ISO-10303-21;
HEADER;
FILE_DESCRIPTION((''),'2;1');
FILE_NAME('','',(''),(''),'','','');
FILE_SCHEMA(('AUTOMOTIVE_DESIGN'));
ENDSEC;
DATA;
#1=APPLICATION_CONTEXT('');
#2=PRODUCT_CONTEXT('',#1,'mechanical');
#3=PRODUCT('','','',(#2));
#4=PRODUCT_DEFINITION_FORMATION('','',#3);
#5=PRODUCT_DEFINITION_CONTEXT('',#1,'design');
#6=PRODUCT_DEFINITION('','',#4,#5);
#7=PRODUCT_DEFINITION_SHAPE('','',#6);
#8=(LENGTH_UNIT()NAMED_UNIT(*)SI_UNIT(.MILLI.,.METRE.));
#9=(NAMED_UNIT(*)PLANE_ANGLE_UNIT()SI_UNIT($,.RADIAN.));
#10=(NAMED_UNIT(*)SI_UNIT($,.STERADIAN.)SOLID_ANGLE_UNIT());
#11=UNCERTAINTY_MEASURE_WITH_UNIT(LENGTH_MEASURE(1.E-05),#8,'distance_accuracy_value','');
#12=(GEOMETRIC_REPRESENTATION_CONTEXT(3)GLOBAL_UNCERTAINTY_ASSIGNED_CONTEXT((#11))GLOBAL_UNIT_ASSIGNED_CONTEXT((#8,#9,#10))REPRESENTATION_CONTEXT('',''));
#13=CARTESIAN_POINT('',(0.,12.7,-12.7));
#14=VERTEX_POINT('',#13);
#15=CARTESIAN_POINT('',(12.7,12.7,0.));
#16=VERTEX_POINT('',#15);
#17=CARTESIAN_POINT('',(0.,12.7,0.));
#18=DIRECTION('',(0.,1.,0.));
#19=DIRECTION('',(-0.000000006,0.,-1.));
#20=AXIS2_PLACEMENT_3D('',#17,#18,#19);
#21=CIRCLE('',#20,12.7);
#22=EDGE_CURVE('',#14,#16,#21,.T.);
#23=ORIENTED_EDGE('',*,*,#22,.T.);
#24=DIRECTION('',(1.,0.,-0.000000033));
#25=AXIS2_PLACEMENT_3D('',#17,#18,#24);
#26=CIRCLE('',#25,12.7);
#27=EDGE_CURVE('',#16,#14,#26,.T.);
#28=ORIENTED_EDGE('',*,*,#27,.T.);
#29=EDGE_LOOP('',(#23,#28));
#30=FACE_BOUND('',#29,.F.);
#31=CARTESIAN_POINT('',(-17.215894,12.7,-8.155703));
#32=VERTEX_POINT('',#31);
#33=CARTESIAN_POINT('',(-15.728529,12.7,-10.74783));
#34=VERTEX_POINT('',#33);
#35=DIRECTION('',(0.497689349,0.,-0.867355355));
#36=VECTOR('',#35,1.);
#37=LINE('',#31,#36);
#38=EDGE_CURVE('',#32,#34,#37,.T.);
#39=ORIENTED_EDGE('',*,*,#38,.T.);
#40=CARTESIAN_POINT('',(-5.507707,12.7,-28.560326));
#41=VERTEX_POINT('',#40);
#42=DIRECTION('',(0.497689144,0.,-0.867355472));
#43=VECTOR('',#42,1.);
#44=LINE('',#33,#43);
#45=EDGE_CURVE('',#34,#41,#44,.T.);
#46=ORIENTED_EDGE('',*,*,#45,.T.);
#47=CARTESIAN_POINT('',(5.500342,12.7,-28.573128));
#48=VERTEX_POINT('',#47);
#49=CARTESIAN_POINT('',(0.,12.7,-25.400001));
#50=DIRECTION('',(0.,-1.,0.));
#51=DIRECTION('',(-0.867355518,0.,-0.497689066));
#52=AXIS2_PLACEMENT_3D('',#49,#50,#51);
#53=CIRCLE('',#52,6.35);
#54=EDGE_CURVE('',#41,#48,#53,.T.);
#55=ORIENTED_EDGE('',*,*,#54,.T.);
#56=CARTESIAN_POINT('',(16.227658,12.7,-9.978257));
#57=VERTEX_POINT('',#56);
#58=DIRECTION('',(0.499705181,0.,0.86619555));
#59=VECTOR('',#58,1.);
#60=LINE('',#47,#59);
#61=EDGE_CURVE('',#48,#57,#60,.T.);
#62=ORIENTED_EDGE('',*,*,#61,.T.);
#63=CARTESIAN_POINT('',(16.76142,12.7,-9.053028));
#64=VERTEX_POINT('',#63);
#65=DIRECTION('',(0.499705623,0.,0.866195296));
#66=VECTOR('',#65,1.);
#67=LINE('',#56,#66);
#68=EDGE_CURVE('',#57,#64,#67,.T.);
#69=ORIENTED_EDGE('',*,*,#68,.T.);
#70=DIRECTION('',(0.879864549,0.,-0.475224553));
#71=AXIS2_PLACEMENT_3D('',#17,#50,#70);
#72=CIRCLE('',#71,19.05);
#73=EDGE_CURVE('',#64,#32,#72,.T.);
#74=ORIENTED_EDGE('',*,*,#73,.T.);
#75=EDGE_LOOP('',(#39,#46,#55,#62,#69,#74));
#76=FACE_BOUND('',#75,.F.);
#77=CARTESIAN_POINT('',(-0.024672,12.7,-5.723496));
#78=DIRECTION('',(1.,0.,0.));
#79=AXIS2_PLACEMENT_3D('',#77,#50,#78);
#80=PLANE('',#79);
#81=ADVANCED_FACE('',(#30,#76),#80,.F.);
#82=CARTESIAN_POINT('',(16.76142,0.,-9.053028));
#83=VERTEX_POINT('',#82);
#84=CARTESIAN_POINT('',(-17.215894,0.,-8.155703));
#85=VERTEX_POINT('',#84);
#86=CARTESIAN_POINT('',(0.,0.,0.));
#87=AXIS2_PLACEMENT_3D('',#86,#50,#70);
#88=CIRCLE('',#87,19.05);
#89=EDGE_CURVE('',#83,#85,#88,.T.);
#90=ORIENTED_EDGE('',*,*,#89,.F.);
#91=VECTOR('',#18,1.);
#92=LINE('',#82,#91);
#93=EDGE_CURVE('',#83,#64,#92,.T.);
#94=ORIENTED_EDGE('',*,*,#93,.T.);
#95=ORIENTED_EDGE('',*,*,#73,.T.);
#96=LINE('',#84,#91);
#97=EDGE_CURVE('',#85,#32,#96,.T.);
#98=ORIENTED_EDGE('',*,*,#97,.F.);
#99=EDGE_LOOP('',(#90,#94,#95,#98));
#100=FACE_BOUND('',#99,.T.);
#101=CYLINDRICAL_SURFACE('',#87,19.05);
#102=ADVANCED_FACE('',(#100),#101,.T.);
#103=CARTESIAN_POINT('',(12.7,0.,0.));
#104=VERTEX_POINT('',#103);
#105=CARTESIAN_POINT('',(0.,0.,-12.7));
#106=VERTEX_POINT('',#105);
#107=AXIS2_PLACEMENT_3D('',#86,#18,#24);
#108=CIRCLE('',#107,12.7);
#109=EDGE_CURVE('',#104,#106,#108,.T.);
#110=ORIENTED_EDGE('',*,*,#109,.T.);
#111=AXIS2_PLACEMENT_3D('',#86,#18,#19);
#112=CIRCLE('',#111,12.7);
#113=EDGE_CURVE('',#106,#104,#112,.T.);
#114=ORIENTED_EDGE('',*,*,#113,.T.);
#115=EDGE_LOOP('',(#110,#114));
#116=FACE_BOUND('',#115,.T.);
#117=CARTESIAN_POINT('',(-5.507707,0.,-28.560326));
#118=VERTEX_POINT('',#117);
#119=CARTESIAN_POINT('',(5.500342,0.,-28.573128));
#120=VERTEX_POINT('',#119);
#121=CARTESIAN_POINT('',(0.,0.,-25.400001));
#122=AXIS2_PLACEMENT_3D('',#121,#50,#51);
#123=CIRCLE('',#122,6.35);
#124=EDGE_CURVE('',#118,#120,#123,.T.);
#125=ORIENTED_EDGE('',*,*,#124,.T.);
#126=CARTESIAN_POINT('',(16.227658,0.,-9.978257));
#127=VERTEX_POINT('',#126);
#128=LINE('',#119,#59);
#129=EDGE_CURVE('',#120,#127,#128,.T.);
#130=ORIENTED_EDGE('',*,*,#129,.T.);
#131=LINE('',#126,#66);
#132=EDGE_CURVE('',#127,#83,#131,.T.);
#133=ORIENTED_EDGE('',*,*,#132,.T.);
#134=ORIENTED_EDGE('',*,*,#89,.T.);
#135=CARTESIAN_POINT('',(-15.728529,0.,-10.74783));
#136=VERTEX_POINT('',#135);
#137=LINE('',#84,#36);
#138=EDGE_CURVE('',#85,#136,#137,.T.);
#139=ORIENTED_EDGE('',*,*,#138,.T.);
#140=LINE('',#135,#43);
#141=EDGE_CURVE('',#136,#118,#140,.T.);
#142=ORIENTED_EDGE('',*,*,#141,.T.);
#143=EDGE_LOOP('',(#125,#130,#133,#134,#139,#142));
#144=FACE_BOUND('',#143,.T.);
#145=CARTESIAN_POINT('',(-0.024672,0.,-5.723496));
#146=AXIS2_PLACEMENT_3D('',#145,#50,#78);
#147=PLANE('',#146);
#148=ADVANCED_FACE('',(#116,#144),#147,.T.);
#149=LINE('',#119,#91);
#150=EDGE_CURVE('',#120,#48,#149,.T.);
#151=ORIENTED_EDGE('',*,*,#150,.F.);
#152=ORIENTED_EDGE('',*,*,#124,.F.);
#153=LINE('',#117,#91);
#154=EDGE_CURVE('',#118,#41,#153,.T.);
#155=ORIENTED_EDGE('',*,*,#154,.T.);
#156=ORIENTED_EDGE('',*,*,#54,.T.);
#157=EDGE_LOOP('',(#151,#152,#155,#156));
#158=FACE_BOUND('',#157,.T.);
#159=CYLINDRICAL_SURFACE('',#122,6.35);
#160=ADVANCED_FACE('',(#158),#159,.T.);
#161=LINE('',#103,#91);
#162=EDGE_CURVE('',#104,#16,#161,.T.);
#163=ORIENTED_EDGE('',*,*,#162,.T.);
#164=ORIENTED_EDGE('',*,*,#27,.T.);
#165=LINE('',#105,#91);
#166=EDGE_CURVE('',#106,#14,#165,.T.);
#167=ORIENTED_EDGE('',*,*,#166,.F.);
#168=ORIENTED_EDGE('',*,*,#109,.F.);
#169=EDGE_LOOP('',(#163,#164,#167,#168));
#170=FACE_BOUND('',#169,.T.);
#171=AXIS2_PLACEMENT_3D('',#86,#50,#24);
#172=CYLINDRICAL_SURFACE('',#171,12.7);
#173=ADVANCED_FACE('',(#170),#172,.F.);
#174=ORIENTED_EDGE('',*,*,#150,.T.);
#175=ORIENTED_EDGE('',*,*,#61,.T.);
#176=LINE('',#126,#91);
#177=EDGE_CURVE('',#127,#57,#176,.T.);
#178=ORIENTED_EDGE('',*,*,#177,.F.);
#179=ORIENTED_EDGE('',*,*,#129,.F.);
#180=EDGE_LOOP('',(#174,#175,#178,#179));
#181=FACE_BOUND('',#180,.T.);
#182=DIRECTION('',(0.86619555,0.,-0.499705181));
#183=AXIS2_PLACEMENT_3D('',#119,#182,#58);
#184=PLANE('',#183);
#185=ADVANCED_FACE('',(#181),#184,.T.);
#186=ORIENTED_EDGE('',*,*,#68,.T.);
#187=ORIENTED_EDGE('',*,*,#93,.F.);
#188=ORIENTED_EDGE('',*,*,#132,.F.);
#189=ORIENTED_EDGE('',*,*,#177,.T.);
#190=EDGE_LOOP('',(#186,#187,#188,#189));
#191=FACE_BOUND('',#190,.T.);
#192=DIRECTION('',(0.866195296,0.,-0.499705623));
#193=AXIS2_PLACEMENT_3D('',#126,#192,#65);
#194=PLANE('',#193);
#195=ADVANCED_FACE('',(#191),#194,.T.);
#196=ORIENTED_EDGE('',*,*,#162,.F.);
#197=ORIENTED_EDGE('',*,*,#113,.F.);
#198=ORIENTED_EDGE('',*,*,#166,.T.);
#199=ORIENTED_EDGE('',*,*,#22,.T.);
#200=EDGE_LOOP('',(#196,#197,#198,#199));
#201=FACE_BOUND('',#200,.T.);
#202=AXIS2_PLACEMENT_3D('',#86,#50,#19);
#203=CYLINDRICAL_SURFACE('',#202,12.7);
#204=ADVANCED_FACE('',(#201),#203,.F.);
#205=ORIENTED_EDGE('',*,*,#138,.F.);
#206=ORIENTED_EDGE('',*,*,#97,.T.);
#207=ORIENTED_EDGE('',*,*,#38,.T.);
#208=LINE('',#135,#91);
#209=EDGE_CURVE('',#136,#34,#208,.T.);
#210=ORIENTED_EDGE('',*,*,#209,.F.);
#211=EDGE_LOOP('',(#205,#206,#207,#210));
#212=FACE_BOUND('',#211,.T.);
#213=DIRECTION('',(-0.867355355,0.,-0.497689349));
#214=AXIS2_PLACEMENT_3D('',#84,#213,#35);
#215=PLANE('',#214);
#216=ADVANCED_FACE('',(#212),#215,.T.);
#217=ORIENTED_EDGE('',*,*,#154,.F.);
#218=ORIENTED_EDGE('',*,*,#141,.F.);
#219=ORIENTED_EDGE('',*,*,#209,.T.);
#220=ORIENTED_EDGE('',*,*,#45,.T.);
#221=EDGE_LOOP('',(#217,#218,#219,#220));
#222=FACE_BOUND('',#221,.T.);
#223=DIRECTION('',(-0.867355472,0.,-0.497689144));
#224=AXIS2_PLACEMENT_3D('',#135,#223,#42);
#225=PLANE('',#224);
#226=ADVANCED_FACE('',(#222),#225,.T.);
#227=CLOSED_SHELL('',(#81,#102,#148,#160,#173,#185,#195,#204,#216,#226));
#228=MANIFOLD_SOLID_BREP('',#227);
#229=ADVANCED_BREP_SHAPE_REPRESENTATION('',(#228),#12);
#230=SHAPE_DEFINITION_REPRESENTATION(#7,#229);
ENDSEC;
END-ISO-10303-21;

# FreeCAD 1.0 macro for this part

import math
import FreeCAD as App
import Part
import Sketcher

V = App.Vector
Q = App.Units.Quantity

doc = App.newDocument("Part")
body = doc.addObject("PartDesign::Body", "Body")

# Sketch on XZ plane
sketch1 = body.newObject("Sketcher::SketchObject", "Sketch")
sketch1.AttachmentSupport = (doc.getObject("XZ_Plane"), [""])
sketch1.MapMode = "FlatFace"
sketch1.addGeometry([
    Part.LineSegment(V(5.5, -28.6, 0), V(16.2, -10, 0)),  # 0
    Part.LineSegment(V(16.2, -10, 0), V(16.8, -9.1, 0)),  # 1
    Part.ArcOfCircle(Part.Circle(V(0, 0, 0), V(0, 0, 1), 19.1), math.radians(-28), math.radians(205)),  # 2
    Part.LineSegment(V(-17.2, -8.2, 0), V(-15.7, -10.7, 0)),  # 3
    Part.LineSegment(V(-15.7, -10.7, 0), V(-5.5, -28.6, 0)),  # 4
    Part.ArcOfCircle(Part.Circle(V(0, -25.4, 0), V(0, 0, 1), 6.3), math.radians(-150), math.radians(-30)),  # 5
    Part.ArcOfCircle(Part.Circle(V(0, 0, 0), V(0, 0, 1), 12.7), math.radians(-90), math.radians(0)),  # 6
    Part.ArcOfCircle(Part.Circle(V(0, 0, 0), V(0, 0, 1), 12.7), math.radians(0), math.radians(270)),  # 7
], False)
sketch1.addConstraint([
    Sketcher.Constraint("Coincident", 0, 2, 1, 1),
    Sketcher.Constraint("Coincident", 1, 2, 2, 1),
    Sketcher.Constraint("Coincident", 2, 2, 3, 1),
    Sketcher.Constraint("Coincident", 3, 2, 4, 1),
    Sketcher.Constraint("Tangent", 4, 2, 5, 1),
    Sketcher.Constraint("Tangent", 5, 2, 0, 1),
    Sketcher.Constraint("Tangent", 6, 1, 7, 2),
    Sketcher.Constraint("Coincident", 7, 1, 6, 2),
    Sketcher.Constraint("Coincident", 2, 3, -1, 1),
    Sketcher.Constraint("Coincident", 6, 3, -1, 1),
    Sketcher.Constraint("PointOnObject", 5, 3, -2),
    Sketcher.Constraint("PointOnObject", 6, 1, -2),
    Sketcher.Constraint("PointOnObject", 7, 1, -1),
    Sketcher.Constraint("Parallel", 0, 1),
    Sketcher.Constraint("Parallel", 3, 4),
    Sketcher.Constraint("Radius", 6, Q("0.5 in")),
    Sketcher.Constraint("Radius", 2, Q("0.75 in")),
    Sketcher.Constraint("Radius", 5, Q("0.25 in")),
    Sketcher.Constraint("DistanceY", 5, 3, -1, 1, Q("1 in")),
    Sketcher.Constraint("DistanceY", 5, 2, 4, 2, 0.012802),
    Sketcher.Constraint("DistanceY", 5, 2, 1, 2, 19.5201),
    Sketcher.Constraint("Distance", 0, 21.46729),
    Sketcher.Constraint("Distance", 3, 2.988541),
])
pad1 = body.newObject("PartDesign::Pad", "Pad")
pad1.Profile = sketch1
pad1.Length = Q("0.5 in")
pad1.Reversed = True

doc.recompute()
